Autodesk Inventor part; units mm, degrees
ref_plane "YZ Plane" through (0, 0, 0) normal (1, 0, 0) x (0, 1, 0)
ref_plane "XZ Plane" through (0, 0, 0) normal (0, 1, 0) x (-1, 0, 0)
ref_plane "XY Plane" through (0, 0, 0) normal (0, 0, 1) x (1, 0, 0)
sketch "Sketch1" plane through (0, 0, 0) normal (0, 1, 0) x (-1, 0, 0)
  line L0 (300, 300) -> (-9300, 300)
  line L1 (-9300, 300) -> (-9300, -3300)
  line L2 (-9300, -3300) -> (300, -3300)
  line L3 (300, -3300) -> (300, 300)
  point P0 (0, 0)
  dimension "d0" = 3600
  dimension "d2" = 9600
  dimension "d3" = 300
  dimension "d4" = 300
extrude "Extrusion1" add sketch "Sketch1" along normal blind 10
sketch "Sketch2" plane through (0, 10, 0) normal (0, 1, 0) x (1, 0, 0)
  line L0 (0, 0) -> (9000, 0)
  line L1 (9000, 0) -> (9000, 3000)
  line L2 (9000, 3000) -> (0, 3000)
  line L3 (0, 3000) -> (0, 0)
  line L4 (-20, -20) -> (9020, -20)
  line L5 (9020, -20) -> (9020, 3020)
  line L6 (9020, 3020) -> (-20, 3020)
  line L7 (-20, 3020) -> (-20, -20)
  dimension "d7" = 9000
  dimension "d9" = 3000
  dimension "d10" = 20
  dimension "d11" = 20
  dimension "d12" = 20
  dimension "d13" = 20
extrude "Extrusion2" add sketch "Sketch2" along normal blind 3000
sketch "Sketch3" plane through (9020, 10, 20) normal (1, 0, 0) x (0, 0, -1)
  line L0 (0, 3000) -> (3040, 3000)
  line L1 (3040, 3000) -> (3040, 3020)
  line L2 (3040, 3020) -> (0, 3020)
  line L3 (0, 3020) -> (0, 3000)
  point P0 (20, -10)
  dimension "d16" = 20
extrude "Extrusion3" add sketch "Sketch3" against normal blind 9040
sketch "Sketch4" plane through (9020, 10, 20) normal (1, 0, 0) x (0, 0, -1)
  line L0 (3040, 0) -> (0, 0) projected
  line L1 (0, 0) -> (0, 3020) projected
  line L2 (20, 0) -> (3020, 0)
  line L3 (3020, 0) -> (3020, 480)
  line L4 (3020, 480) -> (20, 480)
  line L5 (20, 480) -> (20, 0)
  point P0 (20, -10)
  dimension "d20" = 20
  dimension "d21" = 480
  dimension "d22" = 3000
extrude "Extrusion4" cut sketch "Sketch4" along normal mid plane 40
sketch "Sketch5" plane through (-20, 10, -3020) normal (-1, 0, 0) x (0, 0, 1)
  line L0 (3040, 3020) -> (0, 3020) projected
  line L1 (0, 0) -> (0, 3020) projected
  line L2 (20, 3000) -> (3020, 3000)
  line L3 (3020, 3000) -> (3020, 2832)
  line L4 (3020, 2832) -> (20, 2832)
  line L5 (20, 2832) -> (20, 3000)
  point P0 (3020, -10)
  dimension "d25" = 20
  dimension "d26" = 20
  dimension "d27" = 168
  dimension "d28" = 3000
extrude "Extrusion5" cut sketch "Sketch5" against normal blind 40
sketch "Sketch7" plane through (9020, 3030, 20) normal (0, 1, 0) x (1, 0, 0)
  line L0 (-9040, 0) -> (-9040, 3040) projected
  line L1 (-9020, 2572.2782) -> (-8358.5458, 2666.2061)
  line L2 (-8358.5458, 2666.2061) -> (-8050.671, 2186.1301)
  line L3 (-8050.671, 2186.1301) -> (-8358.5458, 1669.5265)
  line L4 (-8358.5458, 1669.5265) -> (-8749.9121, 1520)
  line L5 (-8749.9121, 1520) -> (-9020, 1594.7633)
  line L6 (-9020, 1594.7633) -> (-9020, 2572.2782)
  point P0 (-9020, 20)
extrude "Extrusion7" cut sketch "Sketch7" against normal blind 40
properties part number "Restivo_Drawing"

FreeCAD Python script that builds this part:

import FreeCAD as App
import Part
import Sketcher
from FreeCAD import Vector
Q = App.Units.Quantity

doc = App.newDocument("Part")
body = doc.addObject("PartDesign::Body", "Body")

# Sketch on XZ plane
sketch1 = body.newObject("Sketcher::SketchObject", "Sketch")
sketch1.AttachmentSupport = (doc.getObject("XZ_Plane"), [""])
sketch1.MapMode = "FlatFace"
sketch1.addGeometry(Part.LineSegment(Vector(-300, -3300, 0), Vector(-300, 300, 0)), False)
sketch1.addGeometry(Part.LineSegment(Vector(-300, 300, 0), Vector(9300, 300, 0)), False)
sketch1.addGeometry(Part.LineSegment(Vector(9300, 300, 0), Vector(9300, -3300, 0)), False)
sketch1.addGeometry(Part.LineSegment(Vector(9300, -3300, 0), Vector(-300, -3300, 0)), False)
sketch1.addConstraint(Sketcher.Constraint("Coincident", 0, 2, 1, 1))
sketch1.addConstraint(Sketcher.Constraint("Coincident", 1, 2, 2, 1))
sketch1.addConstraint(Sketcher.Constraint("Coincident", 2, 2, 3, 1))
sketch1.addConstraint(Sketcher.Constraint("Coincident", 3, 2, 0, 1))
sketch1.addConstraint(Sketcher.Constraint("Vertical", 0))
sketch1.addConstraint(Sketcher.Constraint("Horizontal", 1))
sketch1.addConstraint(Sketcher.Constraint("Vertical", 2))
sketch1.addConstraint(Sketcher.Constraint("Horizontal", 3))
sketch1.addConstraint(Sketcher.Constraint("DistanceX", 1, 1, 1, 2, 9600.0))
sketch1.addConstraint(Sketcher.Constraint("DistanceY", 0, 1, 0, 2, 3600.0))
sketch1.addConstraint(Sketcher.Constraint("DistanceX", 0, 2, -1, 1, 300.0))
sketch1.addConstraint(Sketcher.Constraint("DistanceY", -1, 1, 0, 2, 300.0))
pad1 = body.newObject("PartDesign::Pad", "Pad")
pad1.Profile = sketch1
pad1.Length = 10
pad1.Reversed = True

# Sketch on XZ plane
sketch2 = body.newObject("Sketcher::SketchObject", "Sketch001")
sketch2.AttachmentSupport = (doc.getObject("XZ_Plane"), [""])
sketch2.MapMode = "FlatFace"
sketch2.AttachmentOffset = App.Placement(Vector(0, 0, -10), App.Rotation())
sketch2.addGeometry(Part.LineSegment(Vector(-20, -3020, 0), Vector(-20, 20, 0)), False)
sketch2.addGeometry(Part.LineSegment(Vector(-20, 20, 0), Vector(9020, 20, 0)), False)
sketch2.addGeometry(Part.LineSegment(Vector(9020, 20, 0), Vector(9020, -3020, 0)), False)
sketch2.addGeometry(Part.LineSegment(Vector(9020, -3020, 0), Vector(-20, -3020, 0)), False)
sketch2.addGeometry(Part.LineSegment(Vector(9000, 0, 0), Vector(0, 0, 0)), False)
sketch2.addGeometry(Part.LineSegment(Vector(0, 0, 0), Vector(0, -3000, 0)), False)
sketch2.addGeometry(Part.LineSegment(Vector(0, -3000, 0), Vector(9000, -3000, 0)), False)
sketch2.addGeometry(Part.LineSegment(Vector(9000, -3000, 0), Vector(9000, 0, 0)), False)
sketch2.addConstraint(Sketcher.Constraint("Coincident", 0, 2, 1, 1))
sketch2.addConstraint(Sketcher.Constraint("Coincident", 1, 2, 2, 1))
sketch2.addConstraint(Sketcher.Constraint("Coincident", 2, 2, 3, 1))
sketch2.addConstraint(Sketcher.Constraint("Coincident", 3, 2, 0, 1))
sketch2.addConstraint(Sketcher.Constraint("Coincident", 4, 2, 5, 1))
sketch2.addConstraint(Sketcher.Constraint("Coincident", 5, 2, 6, 1))
sketch2.addConstraint(Sketcher.Constraint("Coincident", 6, 2, 7, 1))
sketch2.addConstraint(Sketcher.Constraint("Coincident", 7, 2, 4, 1))
sketch2.addConstraint(Sketcher.Constraint("Vertical", 0))
sketch2.addConstraint(Sketcher.Constraint("Horizontal", 1))
sketch2.addConstraint(Sketcher.Constraint("Vertical", 2))
sketch2.addConstraint(Sketcher.Constraint("Horizontal", 3))
sketch2.addConstraint(Sketcher.Constraint("Horizontal", 4))
sketch2.addConstraint(Sketcher.Constraint("Vertical", 5))
sketch2.addConstraint(Sketcher.Constraint("Horizontal", 6))
sketch2.addConstraint(Sketcher.Constraint("Vertical", 7))
sketch2.addConstraint(Sketcher.Constraint("Coincident", 4, 2, -1, 1))
sketch2.addConstraint(Sketcher.Constraint("DistanceX", 4, 2, 4, 1, 9000.0))
sketch2.addConstraint(Sketcher.Constraint("DistanceY", 5, 2, 5, 1, 3000.0))
sketch2.addConstraint(Sketcher.Constraint("DistanceX", 0, 2, -1, 1, 20.0))
sketch2.addConstraint(Sketcher.Constraint("DistanceY", -1, 1, 0, 2, 20.0))
sketch2.addConstraint(Sketcher.Constraint("DistanceY", 3, 2, 5, 2, 20.0))
sketch2.addConstraint(Sketcher.Constraint("DistanceX", 6, 2, 2, 2, 20.0))
pad2 = body.newObject("PartDesign::Pad", "Pad001")
pad2.Profile = sketch2
pad2.Length = 3000
pad2.Reversed = True

# Sketch on YZ plane
sketch3 = body.newObject("Sketcher::SketchObject", "Sketch002")
sketch3.AttachmentSupport = (doc.getObject("YZ_Plane"), [""])
sketch3.MapMode = "FlatFace"
sketch3.AttachmentOffset = App.Placement(Vector(0, 0, 9020), App.Rotation())
sketch3.addGeometry(Part.LineSegment(Vector(3030, 20, 0), Vector(3010, 20, 0)), False)
sketch3.addGeometry(Part.LineSegment(Vector(3010, 20, 0), Vector(3010, -3020, 0)), False)
sketch3.addGeometry(Part.LineSegment(Vector(3010, -3020, 0), Vector(3030, -3020, 0)), False)
sketch3.addGeometry(Part.LineSegment(Vector(3030, -3020, 0), Vector(3030, 20, 0)), False)
sketch3.addConstraint(Sketcher.Constraint("Coincident", 0, 2, 1, 1))
sketch3.addConstraint(Sketcher.Constraint("Coincident", 1, 2, 2, 1))
sketch3.addConstraint(Sketcher.Constraint("Coincident", 2, 2, 3, 1))
sketch3.addConstraint(Sketcher.Constraint("Coincident", 3, 2, 0, 1))
sketch3.addConstraint(Sketcher.Constraint("Horizontal", 0))
sketch3.addConstraint(Sketcher.Constraint("Vertical", 1))
sketch3.addConstraint(Sketcher.Constraint("Horizontal", 2))
sketch3.addConstraint(Sketcher.Constraint("Vertical", 3))
sketch3.addConstraint(Sketcher.Constraint("DistanceX", 0, 2, 0, 1, 20.0))
sketch3.addConstraint(Sketcher.Constraint("DistanceY", -1, 1, 0, 2, 20.0))
sketch3.addConstraint(Sketcher.Constraint("DistanceY", 1, 2, 1, 1, 3040.0))
sketch3.addConstraint(Sketcher.Constraint("DistanceX", -1, 1, 0, 2, 3010.0))
pad3 = body.newObject("PartDesign::Pad", "Pad002")
pad3.Profile = sketch3
pad3.Length = 9040
pad3.Reversed = True

# Sketch on YZ plane
sketch4 = body.newObject("Sketcher::SketchObject", "Sketch003")
sketch4.AttachmentSupport = (doc.getObject("YZ_Plane"), [""])
sketch4.MapMode = "FlatFace"
sketch4.AttachmentOffset = App.Placement(Vector(0, 0, 9020), App.Rotation())
sketch4.addGeometry(Part.LineSegment(Vector(10, 0, 0), Vector(10, -3000, 0)), False)
sketch4.addGeometry(Part.LineSegment(Vector(10, -3000, 0), Vector(490, -3000, 0)), False)
sketch4.addGeometry(Part.LineSegment(Vector(490, -3000, 0), Vector(490, 0, 0)), False)
sketch4.addGeometry(Part.LineSegment(Vector(490, 0, 0), Vector(10, 0, 0)), False)
sketch4.addConstraint(Sketcher.Constraint("Coincident", 0, 2, 1, 1))
sketch4.addConstraint(Sketcher.Constraint("Coincident", 1, 2, 2, 1))
sketch4.addConstraint(Sketcher.Constraint("Coincident", 2, 2, 3, 1))
sketch4.addConstraint(Sketcher.Constraint("Coincident", 3, 2, 0, 1))
sketch4.addConstraint(Sketcher.Constraint("Vertical", 0))
sketch4.addConstraint(Sketcher.Constraint("Horizontal", 1))
sketch4.addConstraint(Sketcher.Constraint("Vertical", 2))
sketch4.addConstraint(Sketcher.Constraint("Horizontal", 3))
sketch4.addConstraint(Sketcher.Constraint("PointOnObject", 2, 2, -1))
sketch4.addConstraint(Sketcher.Constraint("DistanceX", 1, 1, 1, 2, 480.0))
sketch4.addConstraint(Sketcher.Constraint("DistanceY", 0, 2, 0, 1, 3000.0))
sketch4.addConstraint(Sketcher.Constraint("DistanceX", -1, 1, 0, 2, 10.0))
pocket1 = body.newObject("PartDesign::Pocket", "Pocket")
pocket1.Profile = sketch4
pocket1.Length = 40
pocket1.Midplane = True

# Sketch on YZ plane
sketch5 = body.newObject("Sketcher::SketchObject", "Sketch004")
sketch5.AttachmentSupport = (doc.getObject("YZ_Plane"), [""])
sketch5.MapMode = "FlatFace"
sketch5.AttachmentOffset = App.Placement(Vector(0, 0, -20), App.Rotation())
sketch5.addGeometry(Part.LineSegment(Vector(3010, 0, 0), Vector(3010, -3000, 0)), False)
sketch5.addGeometry(Part.LineSegment(Vector(3010, -3000, 0), Vector(2842, -3000, 0)), False)
sketch5.addGeometry(Part.LineSegment(Vector(2842, -3000, 0), Vector(2842, 0, 0)), False)
sketch5.addGeometry(Part.LineSegment(Vector(2842, 0, 0), Vector(3010, 0, 0)), False)
sketch5.addConstraint(Sketcher.Constraint("Coincident", 0, 2, 1, 1))
sketch5.addConstraint(Sketcher.Constraint("Coincident", 1, 2, 2, 1))
sketch5.addConstraint(Sketcher.Constraint("Coincident", 2, 2, 3, 1))
sketch5.addConstraint(Sketcher.Constraint("Coincident", 3, 2, 0, 1))
sketch5.addConstraint(Sketcher.Constraint("Vertical", 0))
sketch5.addConstraint(Sketcher.Constraint("Horizontal", 1))
sketch5.addConstraint(Sketcher.Constraint("Vertical", 2))
sketch5.addConstraint(Sketcher.Constraint("Horizontal", 3))
sketch5.addConstraint(Sketcher.Constraint("PointOnObject", 2, 2, -1))
sketch5.addConstraint(Sketcher.Constraint("DistanceX", 1, 2, 1, 1, 168.0))
sketch5.addConstraint(Sketcher.Constraint("DistanceY", 0, 2, 0, 1, 3000.0))
sketch5.addConstraint(Sketcher.Constraint("DistanceX", -1, 1, 0, 2, 3010.0))
pocket2 = body.newObject("PartDesign::Pocket", "Pocket001")
pocket2.Profile = sketch5
pocket2.Length = 40
pocket2.Reversed = True

# Sketch on XZ plane
sketch6 = body.newObject("Sketcher::SketchObject", "Sketch005")
sketch6.AttachmentSupport = (doc.getObject("XZ_Plane"), [""])
sketch6.MapMode = "FlatFace"
sketch6.AttachmentOffset = App.Placement(Vector(0, 0, -3030), App.Rotation())
sketch6.addGeometry(Part.LineSegment(Vector(661, -2646, 0), Vector(0, -2552, 0)), False)
sketch6.addGeometry(Part.LineSegment(Vector(0, -2552, 0), Vector(0, -1575, 0)), False)
sketch6.addGeometry(Part.LineSegment(Vector(0, -1575, 0), Vector(270, -1500, 0)), False)
sketch6.addGeometry(Part.LineSegment(Vector(270, -1500, 0), Vector(661, -1650, 0)), False)
sketch6.addGeometry(Part.LineSegment(Vector(661, -1650, 0), Vector(969, -2166, 0)), False)
sketch6.addGeometry(Part.LineSegment(Vector(969, -2166, 0), Vector(661, -2646, 0)), False)
sketch6.addConstraint(Sketcher.Constraint("Coincident", 0, 2, 1, 1))
sketch6.addConstraint(Sketcher.Constraint("Coincident", 1, 2, 2, 1))
sketch6.addConstraint(Sketcher.Constraint("Coincident", 2, 2, 3, 1))
sketch6.addConstraint(Sketcher.Constraint("Coincident", 3, 2, 4, 1))
sketch6.addConstraint(Sketcher.Constraint("Coincident", 4, 2, 5, 1))
sketch6.addConstraint(Sketcher.Constraint("Coincident", 5, 2, 0, 1))
sketch6.addConstraint(Sketcher.Constraint("Vertical", 1))
sketch6.addConstraint(Sketcher.Constraint("PointOnObject", 0, 2, -2))
sketch6.addConstraint(Sketcher.Constraint("Vertical", 3, 2, 5, 2))
sketch6.addConstraint(Sketcher.Constraint("DistanceY", 2, 2, -1, 1, 1500.0))
sketch6.addConstraint(Sketcher.Constraint("Angle", 3, Q("-20.91 deg")))
sketch6.addConstraint(Sketcher.Constraint("Distance", 0, 668.09))
sketch6.addConstraint(Sketcher.Constraint("DistanceY", 1, 1, 1, 2, 977.515))
sketch6.addConstraint(Sketcher.Constraint("DistanceY", 4, 2, -1, 1, 2166.13))
sketch6.addConstraint(Sketcher.Constraint("Distance", 3, 418.958))
sketch6.addConstraint(Sketcher.Constraint("DistanceX", -1, 1, 2, 2, 270.088))
sketch6.addConstraint(Sketcher.Constraint("DistanceX", -1, 1, 4, 2, 969.329))
sketch6.addConstraint(Sketcher.Constraint("DistanceY", 5, 2, -1, 1, 2646.206))
pocket3 = body.newObject("PartDesign::Pocket", "Pocket002")
pocket3.Profile = sketch6
pocket3.Length = 40
pocket3.Reversed = True

doc.recompute()
